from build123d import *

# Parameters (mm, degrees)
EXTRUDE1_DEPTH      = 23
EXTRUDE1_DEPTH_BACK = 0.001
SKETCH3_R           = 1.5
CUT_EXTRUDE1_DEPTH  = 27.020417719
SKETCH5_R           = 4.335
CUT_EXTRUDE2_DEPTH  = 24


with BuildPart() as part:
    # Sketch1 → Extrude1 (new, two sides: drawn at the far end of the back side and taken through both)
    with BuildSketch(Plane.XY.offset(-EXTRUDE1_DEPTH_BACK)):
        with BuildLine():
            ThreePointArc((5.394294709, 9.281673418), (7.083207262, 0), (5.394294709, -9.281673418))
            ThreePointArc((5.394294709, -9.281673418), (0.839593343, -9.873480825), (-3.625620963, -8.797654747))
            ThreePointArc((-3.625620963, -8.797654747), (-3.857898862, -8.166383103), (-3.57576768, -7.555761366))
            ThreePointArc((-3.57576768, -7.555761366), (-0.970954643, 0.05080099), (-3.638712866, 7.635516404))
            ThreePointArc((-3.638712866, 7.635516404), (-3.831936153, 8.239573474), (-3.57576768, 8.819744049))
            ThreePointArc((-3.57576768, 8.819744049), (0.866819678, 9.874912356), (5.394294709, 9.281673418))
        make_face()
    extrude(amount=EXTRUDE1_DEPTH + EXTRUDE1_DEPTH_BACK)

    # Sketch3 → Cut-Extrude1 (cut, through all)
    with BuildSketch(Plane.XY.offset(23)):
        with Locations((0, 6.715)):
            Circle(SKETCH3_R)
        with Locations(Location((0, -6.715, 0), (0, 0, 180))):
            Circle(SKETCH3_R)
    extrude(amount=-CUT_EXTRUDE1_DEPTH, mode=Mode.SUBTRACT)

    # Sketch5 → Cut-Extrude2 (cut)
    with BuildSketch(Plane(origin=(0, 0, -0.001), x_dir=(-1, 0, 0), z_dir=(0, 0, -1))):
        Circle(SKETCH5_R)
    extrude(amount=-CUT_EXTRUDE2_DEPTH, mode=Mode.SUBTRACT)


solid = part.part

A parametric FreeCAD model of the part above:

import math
import FreeCAD as App
import Part
import Sketcher

V = App.Vector
Q = App.Units.Quantity

doc = App.newDocument("Part")
body = doc.addObject("PartDesign::Body", "Body")

sketch1 = body.newObject("Sketcher::SketchObject", "Sketch")
sketch1.AttachmentSupport = (doc.getObject("XY_Plane"), [""])
sketch1.MapMode = "FlatFace"
sketch1.addGeometry([
    Part.ArcOfCircle(Part.Circle(V(-19.3, 0, 0), V(0, 0, 1), 26.3), math.radians(-21), math.radians(21)),
    Part.ArcOfCircle(Part.Circle(V(1.5, -2.7, 0), V(0, 0, 1), 12.6), math.radians(72), math.radians(114)),
    Part.ArcOfCircle(Part.Circle(V(-2.9, 8.2, 0), V(0, 0, 1), 0.9), math.radians(135), math.radians(219)),
    Part.ArcOfCircle(Part.Circle(V(-13.2, 0, 0), V(0, 0, 1), 12.3), math.radians(-38), math.radians(39)),
    Part.ArcOfCircle(Part.Circle(V(-3, -8.2, 0), V(0, 0, 1), 0.9), math.radians(133), math.radians(223)),
    Part.ArcOfCircle(Part.Circle(V(1.5, 2.7, 0), V(0, 0, 1), 12.6), math.radians(-114), math.radians(-72)),
], False)
sketch1.addConstraint([
    Sketcher.Constraint("Coincident", 0, 2, 1, 1),
    Sketcher.Constraint("Coincident", 1, 2, 2, 1),
    Sketcher.Constraint("Tangent", 2, 2, 3, 2),
    Sketcher.Constraint("Coincident", 3, 1, 4, 1),
    Sketcher.Constraint("Coincident", 4, 2, 5, 1),
    Sketcher.Constraint("Coincident", 5, 2, 0, 1),
    Sketcher.Constraint("Equal", 1, 5),
    Sketcher.Constraint("Symmetric", 1, 3, 5, 3, -1),
    Sketcher.Constraint("PointOnObject", 0, 3, -1),
    Sketcher.Constraint("PointOnObject", 3, 3, -1),
    Sketcher.Constraint("Vertical", 1, 2, 3, 1),
    Sketcher.Constraint("Radius", 2, Q("0.893771 mm")),
    Sketcher.Constraint("Radius", 4, Q("0.878858 mm")),
    Sketcher.Constraint("Radius", 0, Q("26.348874 mm")),
    Sketcher.Constraint("Radius", 1, Q("12.631813 mm")),
    Sketcher.Constraint("Radius", 3, Q("12.260486 mm")),
    Sketcher.Constraint("DistanceY", 1, 3, 2, 2, Q("10.375701 mm")),
    Sketcher.Constraint("DistanceY", 3, 1, -1, 1, Q("7.555761 mm")),
    Sketcher.Constraint("DistanceX", 4, 2, -1, 1, Q("3.625621 mm")),
    Sketcher.Constraint("DistanceX", 2, 3, 1, 3, Q("4.455882 mm")),
    Sketcher.Constraint("DistanceX", 0, 3, 2, 3, Q("16.326241 mm")),
    Sketcher.Constraint("DistanceY", 4, 3, 1, 3, Q("5.461451 mm")),
])
pad1 = body.newObject("PartDesign::Pad", "Pad")
pad1.Profile = sketch1
pad1.Type = "TwoLengths"
pad1.Length = 23
pad1.Length2 = 0.001

sketch2 = body.newObject("Sketcher::SketchObject", "Sketch001")
sketch2.AttachmentSupport = (doc.getObject("XY_Plane"), [""])
sketch2.MapMode = "FlatFace"
sketch2.AttachmentOffset = App.Placement(V(0, 0, 23), App.Rotation())
sketch2.addGeometry([
    Part.Circle(V(0, 6.7, 0), V(0, 0, 1), 1.5),
    Part.Circle(V(0, -6.7, 0), V(0, 0, 1), 1.5),
], False)
sketch2.addConstraint([
    Sketcher.Constraint("Equal", 0, 1),
    Sketcher.Constraint("Symmetric", 0, 3, 1, 3, -1, 1),
    Sketcher.Constraint("PointOnObject", 0, 3, -2),
    Sketcher.Constraint("Diameter", 0, Q("3 mm")),
    Sketcher.Constraint("DistanceY", 1, 3, 0, 3, Q("13.43 mm")),
])
pocket1 = body.newObject("PartDesign::Pocket", "Pocket")
pocket1.Profile = sketch2
pocket1.Type = "ThroughAll"

sketch3 = body.newObject("Sketcher::SketchObject", "Sketch002")
sketch3.AttachmentSupport = (doc.getObject("XY_Plane"), [""])
sketch3.MapMode = "FlatFace"
sketch3.AttachmentOffset = App.Placement(V(0, 0, -0.001), App.Rotation())
sketch3.addGeometry(Part.Circle(V(0, 0, 0), V(0, 0, 1), 4.3), False)
sketch3.addConstraint([
    Sketcher.Constraint("Coincident", 0, 3, -1, 1),
    Sketcher.Constraint("Diameter", 0, Q("8.67 mm")),
])
pocket2 = body.newObject("PartDesign::Pocket", "Pocket001")
pocket2.Profile = sketch3
pocket2.Length = 24
pocket2.Reversed = True

doc.recompute()
